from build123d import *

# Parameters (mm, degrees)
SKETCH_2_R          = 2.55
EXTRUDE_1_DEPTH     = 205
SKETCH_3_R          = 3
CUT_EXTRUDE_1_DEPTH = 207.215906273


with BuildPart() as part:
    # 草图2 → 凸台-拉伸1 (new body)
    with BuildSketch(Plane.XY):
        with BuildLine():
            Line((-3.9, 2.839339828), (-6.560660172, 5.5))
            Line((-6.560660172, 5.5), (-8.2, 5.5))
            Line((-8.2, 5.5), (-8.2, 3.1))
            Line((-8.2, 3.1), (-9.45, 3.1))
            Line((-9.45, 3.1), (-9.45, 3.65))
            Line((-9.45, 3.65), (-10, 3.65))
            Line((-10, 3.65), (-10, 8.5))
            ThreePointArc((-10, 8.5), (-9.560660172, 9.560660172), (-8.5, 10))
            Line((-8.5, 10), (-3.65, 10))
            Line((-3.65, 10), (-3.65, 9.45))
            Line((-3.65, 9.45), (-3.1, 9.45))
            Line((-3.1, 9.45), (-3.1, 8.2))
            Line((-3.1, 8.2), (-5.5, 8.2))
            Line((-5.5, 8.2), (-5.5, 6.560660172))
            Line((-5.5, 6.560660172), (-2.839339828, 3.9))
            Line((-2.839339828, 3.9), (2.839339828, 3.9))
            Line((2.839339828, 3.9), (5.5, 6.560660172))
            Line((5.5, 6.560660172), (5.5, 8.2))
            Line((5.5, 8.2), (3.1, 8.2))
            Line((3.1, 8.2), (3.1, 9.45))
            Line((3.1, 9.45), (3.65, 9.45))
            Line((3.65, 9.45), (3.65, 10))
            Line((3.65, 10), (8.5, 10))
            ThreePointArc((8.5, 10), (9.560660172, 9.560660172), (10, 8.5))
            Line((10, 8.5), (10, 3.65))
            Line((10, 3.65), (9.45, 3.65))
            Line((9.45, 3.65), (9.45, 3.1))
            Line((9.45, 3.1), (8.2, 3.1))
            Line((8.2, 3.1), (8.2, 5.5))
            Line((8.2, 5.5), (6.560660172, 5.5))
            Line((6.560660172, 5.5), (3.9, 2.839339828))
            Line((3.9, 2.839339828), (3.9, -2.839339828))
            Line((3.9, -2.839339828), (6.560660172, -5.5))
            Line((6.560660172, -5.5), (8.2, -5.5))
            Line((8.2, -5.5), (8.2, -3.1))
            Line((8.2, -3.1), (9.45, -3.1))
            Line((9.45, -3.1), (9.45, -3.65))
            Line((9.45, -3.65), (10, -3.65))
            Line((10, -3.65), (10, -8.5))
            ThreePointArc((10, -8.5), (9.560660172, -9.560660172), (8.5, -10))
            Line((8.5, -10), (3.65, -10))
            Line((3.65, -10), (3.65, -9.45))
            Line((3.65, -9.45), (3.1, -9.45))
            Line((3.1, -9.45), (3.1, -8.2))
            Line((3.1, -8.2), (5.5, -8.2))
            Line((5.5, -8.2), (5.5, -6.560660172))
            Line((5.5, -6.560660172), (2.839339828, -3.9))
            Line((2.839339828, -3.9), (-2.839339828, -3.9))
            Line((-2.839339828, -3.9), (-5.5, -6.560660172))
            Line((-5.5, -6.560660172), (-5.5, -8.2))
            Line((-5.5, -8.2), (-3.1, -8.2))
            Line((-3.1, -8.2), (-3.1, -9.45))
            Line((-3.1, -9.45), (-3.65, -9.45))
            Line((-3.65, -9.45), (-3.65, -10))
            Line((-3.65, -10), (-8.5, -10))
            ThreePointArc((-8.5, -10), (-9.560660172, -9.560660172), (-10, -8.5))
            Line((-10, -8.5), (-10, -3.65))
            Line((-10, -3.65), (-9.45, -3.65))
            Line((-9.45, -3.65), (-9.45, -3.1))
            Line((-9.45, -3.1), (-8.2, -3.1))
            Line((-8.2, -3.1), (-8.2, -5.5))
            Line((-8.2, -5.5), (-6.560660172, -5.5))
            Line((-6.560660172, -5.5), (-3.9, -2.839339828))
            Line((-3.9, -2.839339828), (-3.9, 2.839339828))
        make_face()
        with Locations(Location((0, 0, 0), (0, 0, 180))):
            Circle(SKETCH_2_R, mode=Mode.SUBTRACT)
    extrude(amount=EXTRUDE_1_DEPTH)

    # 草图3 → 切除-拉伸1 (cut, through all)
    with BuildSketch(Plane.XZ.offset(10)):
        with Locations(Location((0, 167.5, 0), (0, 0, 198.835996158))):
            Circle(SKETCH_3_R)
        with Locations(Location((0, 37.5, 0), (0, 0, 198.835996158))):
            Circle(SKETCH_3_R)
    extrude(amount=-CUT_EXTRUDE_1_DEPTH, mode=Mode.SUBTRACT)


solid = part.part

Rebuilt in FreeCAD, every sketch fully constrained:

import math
import FreeCAD as App
import Part
import Sketcher

V = App.Vector
Q = App.Units.Quantity

doc = App.newDocument("Part")
body = doc.addObject("PartDesign::Body", "Body")

sketch1 = body.newObject("Sketcher::SketchObject", "Sketch")
sketch1.AttachmentSupport = (doc.getObject("XY_Plane"), [""])
sketch1.MapMode = "FlatFace"
sketch1.addGeometry([
    Part.LineSegment(V(-6.56066, 5.5, 0), V(-3.9, 2.83934, 0)),
    Part.LineSegment(V(-3.9, 2.83934, 0), V(-3.9, -2.83934, 0)),
    Part.LineSegment(V(-3.9, -2.83934, 0), V(-6.56066, -5.5, 0)),
    Part.LineSegment(V(-6.56066, -5.5, 0), V(-8.2, -5.5, 0)),
    Part.LineSegment(V(-8.2, -5.5, 0), V(-8.2, -3.1, 0)),
    Part.LineSegment(V(-8.2, -3.1, 0), V(-9.45, -3.1, 0)),
    Part.LineSegment(V(-9.45, -3.1, 0), V(-9.45, -3.65, 0)),
    Part.LineSegment(V(-9.45, -3.65, 0), V(-10, -3.65, 0)),
    Part.LineSegment(V(-10, -3.65, 0), V(-10, -8.5, 0)),
    Part.ArcOfCircle(Part.Circle(V(-8.5, -8.5, 0), V(0, 0, 1), 1.5), math.radians(180), math.radians(270)),
    Part.LineSegment(V(-8.5, -10, 0), V(-3.65, -10, 0)),
    Part.LineSegment(V(-3.65, -10, 0), V(-3.65, -9.45, 0)),
    Part.LineSegment(V(-3.65, -9.45, 0), V(-3.1, -9.45, 0)),
    Part.LineSegment(V(-3.1, -9.45, 0), V(-3.1, -8.2, 0)),
    Part.LineSegment(V(-3.1, -8.2, 0), V(-5.5, -8.2, 0)),
    Part.LineSegment(V(-5.5, -8.2, 0), V(-5.5, -6.56066, 0)),
    Part.LineSegment(V(-5.5, -6.56066, 0), V(-2.83934, -3.9, 0)),
    Part.LineSegment(V(-2.83934, -3.9, 0), V(2.83934, -3.9, 0)),
    Part.LineSegment(V(2.83934, -3.9, 0), V(5.5, -6.56066, 0)),
    Part.LineSegment(V(5.5, -6.56066, 0), V(5.5, -8.2, 0)),
    Part.LineSegment(V(5.5, -8.2, 0), V(3.1, -8.2, 0)),
    Part.LineSegment(V(3.1, -8.2, 0), V(3.1, -9.45, 0)),
    Part.LineSegment(V(3.1, -9.45, 0), V(3.65, -9.45, 0)),
    Part.LineSegment(V(3.65, -9.45, 0), V(3.65, -10, 0)),
    Part.LineSegment(V(3.65, -10, 0), V(8.5, -10, 0)),
    Part.ArcOfCircle(Part.Circle(V(8.5, -8.5, 0), V(0, 0, 1), 1.5), math.radians(-90), math.radians(0)),
    Part.LineSegment(V(10, -8.5, 0), V(10, -3.65, 0)),
    Part.LineSegment(V(10, -3.65, 0), V(9.45, -3.65, 0)),
    Part.LineSegment(V(9.45, -3.65, 0), V(9.45, -3.1, 0)),
    Part.LineSegment(V(9.45, -3.1, 0), V(8.2, -3.1, 0)),
    Part.LineSegment(V(8.2, -3.1, 0), V(8.2, -5.5, 0)),
    Part.LineSegment(V(8.2, -5.5, 0), V(6.56066, -5.5, 0)),
    Part.LineSegment(V(6.56066, -5.5, 0), V(3.9, -2.83934, 0)),
    Part.LineSegment(V(3.9, -2.83934, 0), V(3.9, 2.83934, 0)),
    Part.LineSegment(V(3.9, 2.83934, 0), V(6.56066, 5.5, 0)),
    Part.LineSegment(V(6.56066, 5.5, 0), V(8.2, 5.5, 0)),
    Part.LineSegment(V(8.2, 5.5, 0), V(8.2, 3.1, 0)),
    Part.LineSegment(V(8.2, 3.1, 0), V(9.45, 3.1, 0)),
    Part.LineSegment(V(9.45, 3.1, 0), V(9.45, 3.65, 0)),
    Part.LineSegment(V(9.45, 3.65, 0), V(10, 3.65, 0)),
    Part.LineSegment(V(10, 3.65, 0), V(10, 8.5, 0)),
    Part.ArcOfCircle(Part.Circle(V(8.5, 8.5, 0), V(0, 0, 1), 1.5), math.radians(0), math.radians(90)),
    Part.LineSegment(V(8.5, 10, 0), V(3.65, 10, 0)),
    Part.LineSegment(V(3.65, 10, 0), V(3.65, 9.45, 0)),
    Part.LineSegment(V(3.65, 9.45, 0), V(3.1, 9.45, 0)),
    Part.LineSegment(V(3.1, 9.45, 0), V(3.1, 8.2, 0)),
    Part.LineSegment(V(3.1, 8.2, 0), V(5.5, 8.2, 0)),
    Part.LineSegment(V(5.5, 8.2, 0), V(5.5, 6.56066, 0)),
    Part.LineSegment(V(5.5, 6.56066, 0), V(2.83934, 3.9, 0)),
    Part.LineSegment(V(2.83934, 3.9, 0), V(-2.83934, 3.9, 0)),
    Part.LineSegment(V(-2.83934, 3.9, 0), V(-5.5, 6.56066, 0)),
    Part.LineSegment(V(-5.5, 6.56066, 0), V(-5.5, 8.2, 0)),
    Part.LineSegment(V(-5.5, 8.2, 0), V(-3.1, 8.2, 0)),
    Part.LineSegment(V(-3.1, 8.2, 0), V(-3.1, 9.45, 0)),
    Part.LineSegment(V(-3.1, 9.45, 0), V(-3.65, 9.45, 0)),
    Part.LineSegment(V(-3.65, 9.45, 0), V(-3.65, 10, 0)),
    Part.LineSegment(V(-3.65, 10, 0), V(-8.5, 10, 0)),
    Part.ArcOfCircle(Part.Circle(V(-8.5, 8.5, 0), V(0, 0, 1), 1.5), math.radians(90), math.radians(180)),
    Part.LineSegment(V(-10, 8.5, 0), V(-10, 3.65, 0)),
    Part.LineSegment(V(-10, 3.65, 0), V(-9.45, 3.65, 0)),
    Part.LineSegment(V(-9.45, 3.65, 0), V(-9.45, 3.1, 0)),
    Part.LineSegment(V(-9.45, 3.1, 0), V(-8.2, 3.1, 0)),
    Part.LineSegment(V(-8.2, 3.1, 0), V(-8.2, 5.5, 0)),
    Part.LineSegment(V(-8.2, 5.5, 0), V(-6.56066, 5.5, 0)),
    Part.Circle(V(0, 0, 0), V(0, 0, 1), 2.55),
], False)
sketch1.addConstraint([
    Sketcher.Constraint("Coincident", 0, 2, 1, 1),
    Sketcher.Constraint("Coincident", 1, 2, 2, 1),
    Sketcher.Constraint("Coincident", 2, 2, 3, 1),
    Sketcher.Constraint("Coincident", 3, 2, 4, 1),
    Sketcher.Constraint("Coincident", 4, 2, 5, 1),
    Sketcher.Constraint("Coincident", 5, 2, 6, 1),
    Sketcher.Constraint("Coincident", 6, 2, 7, 1),
    Sketcher.Constraint("Coincident", 7, 2, 8, 1),
    Sketcher.Constraint("Tangent", 8, 2, 9, 1),
    Sketcher.Constraint("Tangent", 9, 2, 10, 1),
    Sketcher.Constraint("Coincident", 10, 2, 11, 1),
    Sketcher.Constraint("Coincident", 11, 2, 12, 1),
    Sketcher.Constraint("Coincident", 12, 2, 13, 1),
    Sketcher.Constraint("Coincident", 13, 2, 14, 1),
    Sketcher.Constraint("Coincident", 14, 2, 15, 1),
    Sketcher.Constraint("Coincident", 15, 2, 16, 1),
    Sketcher.Constraint("Coincident", 16, 2, 17, 1),
    Sketcher.Constraint("Coincident", 17, 2, 18, 1),
    Sketcher.Constraint("Coincident", 18, 2, 19, 1),
    Sketcher.Constraint("Coincident", 19, 2, 20, 1),
    Sketcher.Constraint("Coincident", 20, 2, 21, 1),
    Sketcher.Constraint("Coincident", 21, 2, 22, 1),
    Sketcher.Constraint("Coincident", 22, 2, 23, 1),
    Sketcher.Constraint("Coincident", 23, 2, 24, 1),
    Sketcher.Constraint("Tangent", 24, 2, 25, 1),
    Sketcher.Constraint("Tangent", 25, 2, 26, 1),
    Sketcher.Constraint("Coincident", 26, 2, 27, 1),
    Sketcher.Constraint("Coincident", 27, 2, 28, 1),
    Sketcher.Constraint("Coincident", 28, 2, 29, 1),
    Sketcher.Constraint("Coincident", 29, 2, 30, 1),
    Sketcher.Constraint("Coincident", 30, 2, 31, 1),
    Sketcher.Constraint("Coincident", 31, 2, 32, 1),
    Sketcher.Constraint("Coincident", 32, 2, 33, 1),
    Sketcher.Constraint("Coincident", 33, 2, 34, 1),
    Sketcher.Constraint("Coincident", 34, 2, 35, 1),
    Sketcher.Constraint("Coincident", 35, 2, 36, 1),
    Sketcher.Constraint("Coincident", 36, 2, 37, 1),
    Sketcher.Constraint("Coincident", 37, 2, 38, 1),
    Sketcher.Constraint("Coincident", 38, 2, 39, 1),
    Sketcher.Constraint("Coincident", 39, 2, 40, 1),
    Sketcher.Constraint("Tangent", 40, 2, 41, 1),
    Sketcher.Constraint("Tangent", 41, 2, 42, 1),
    Sketcher.Constraint("Coincident", 42, 2, 43, 1),
    Sketcher.Constraint("Coincident", 43, 2, 44, 1),
    Sketcher.Constraint("Coincident", 44, 2, 45, 1),
    Sketcher.Constraint("Coincident", 45, 2, 46, 1),
    Sketcher.Constraint("Coincident", 46, 2, 47, 1),
    Sketcher.Constraint("Coincident", 47, 2, 48, 1),
    Sketcher.Constraint("Coincident", 48, 2, 49, 1),
    Sketcher.Constraint("Coincident", 49, 2, 50, 1),
    Sketcher.Constraint("Coincident", 50, 2, 51, 1),
    Sketcher.Constraint("Coincident", 51, 2, 52, 1),
    Sketcher.Constraint("Coincident", 52, 2, 53, 1),
    Sketcher.Constraint("Coincident", 53, 2, 54, 1),
    Sketcher.Constraint("Coincident", 54, 2, 55, 1),
    Sketcher.Constraint("Coincident", 55, 2, 56, 1),
    Sketcher.Constraint("Tangent", 56, 2, 57, 1),
    Sketcher.Constraint("Tangent", 57, 2, 58, 1),
    Sketcher.Constraint("Coincident", 58, 2, 59, 1),
    Sketcher.Constraint("Coincident", 59, 2, 60, 1),
    Sketcher.Constraint("Coincident", 60, 2, 61, 1),
    Sketcher.Constraint("Coincident", 61, 2, 62, 1),
    Sketcher.Constraint("Coincident", 62, 2, 63, 1),
    Sketcher.Constraint("Coincident", 63, 2, 0, 1),
    Sketcher.Constraint("Vertical", 1),
    Sketcher.Constraint("Horizontal", 3),
    Sketcher.Constraint("Vertical", 4),
    Sketcher.Constraint("Horizontal", 5),
    Sketcher.Constraint("Vertical", 6),
    Sketcher.Constraint("Horizontal", 7),
    Sketcher.Constraint("Vertical", 8),
    Sketcher.Constraint("Horizontal", 10),
    Sketcher.Constraint("Vertical", 11),
    Sketcher.Constraint("Horizontal", 12),
    Sketcher.Constraint("Vertical", 13),
    Sketcher.Constraint("Horizontal", 14),
    Sketcher.Constraint("Vertical", 15),
    Sketcher.Constraint("Horizontal", 17),
    Sketcher.Constraint("Vertical", 19),
    Sketcher.Constraint("Horizontal", 20),
    Sketcher.Constraint("Vertical", 21),
    Sketcher.Constraint("Horizontal", 22),
    Sketcher.Constraint("Vertical", 23),
    Sketcher.Constraint("Horizontal", 24),
    Sketcher.Constraint("Vertical", 26),
    Sketcher.Constraint("Horizontal", 27),
    Sketcher.Constraint("Vertical", 28),
    Sketcher.Constraint("Horizontal", 29),
    Sketcher.Constraint("Vertical", 30),
    Sketcher.Constraint("Horizontal", 31),
    Sketcher.Constraint("Vertical", 33),
    Sketcher.Constraint("Horizontal", 35),
    Sketcher.Constraint("Vertical", 36),
    Sketcher.Constraint("Horizontal", 37),
    Sketcher.Constraint("Vertical", 38),
    Sketcher.Constraint("Horizontal", 39),
    Sketcher.Constraint("Vertical", 40),
    Sketcher.Constraint("Horizontal", 42),
    Sketcher.Constraint("Vertical", 43),
    Sketcher.Constraint("Horizontal", 44),
    Sketcher.Constraint("Vertical", 45),
    Sketcher.Constraint("Horizontal", 46),
    Sketcher.Constraint("Vertical", 47),
    Sketcher.Constraint("Horizontal", 49),
    Sketcher.Constraint("Vertical", 51),
    Sketcher.Constraint("Horizontal", 52),
    Sketcher.Constraint("Vertical", 53),
    Sketcher.Constraint("Horizontal", 54),
    Sketcher.Constraint("Vertical", 55),
    Sketcher.Constraint("Horizontal", 56),
    Sketcher.Constraint("Vertical", 58),
    Sketcher.Constraint("Horizontal", 59),
    Sketcher.Constraint("Vertical", 60),
    Sketcher.Constraint("Horizontal", 61),
    Sketcher.Constraint("Vertical", 62),
    Sketcher.Constraint("Horizontal", 63),
    Sketcher.Constraint("Coincident", 64, 3, -1, 1),
    Sketcher.Constraint("Equal", 9, 25),
    Sketcher.Constraint("Equal", 25, 41),
    Sketcher.Constraint("Equal", 41, 57),
    Sketcher.Constraint("Symmetric", 9, 3, 41, 3, -1, 1),
    Sketcher.Constraint("Symmetric", 25, 3, 57, 3, -1, 1),
    Sketcher.Constraint("Symmetric", 0, 2, 32, 2, -1, 1),
    Sketcher.Constraint("Symmetric", 2, 2, 34, 2, -1, 1),
    Sketcher.Constraint("Symmetric", 4, 2, 36, 2, -1, 1),
    Sketcher.Constraint("Symmetric", 6, 2, 38, 2, -1, 1),
    Sketcher.Constraint("Symmetric", 11, 2, 43, 2, -1, 1),
    Sketcher.Constraint("Symmetric", 13, 2, 45, 2, -1, 1),
    Sketcher.Constraint("Symmetric", 15, 2, 47, 2, -1, 1),
    Sketcher.Constraint("Symmetric", 16, 2, 48, 2, -1, 1),
    Sketcher.Constraint("Symmetric", 18, 2, 50, 2, -1, 1),
    Sketcher.Constraint("Symmetric", 20, 2, 52, 2, -1, 1),
    Sketcher.Constraint("Symmetric", 22, 2, 54, 2, -1, 1),
    Sketcher.Constraint("Symmetric", 27, 2, 59, 2, -1, 1),
    Sketcher.Constraint("Symmetric", 29, 2, 61, 2, -1, 1),
    Sketcher.Constraint("Symmetric", 31, 2, 63, 2, -1, 1),
    Sketcher.Constraint("Symmetric", 9, 3, 25, 3, -2),
    Sketcher.Constraint("Symmetric", 15, 2, 18, 2, -2),
    Sketcher.Constraint("Symmetric", 13, 2, 20, 2, -2),
    Sketcher.Constraint("Symmetric", 11, 2, 22, 2, -2),
    Sketcher.Constraint("Symmetric", 6, 2, 27, 2, -2),
    Sketcher.Constraint("Symmetric", 4, 2, 29, 2, -2),
    Sketcher.Constraint("Symmetric", 2, 2, 31, 2, -2),
    Sketcher.Constraint("Perpendicular", 0, 2),
    Sketcher.Constraint("Parallel", 2, 16),
    Sketcher.Constraint("Perpendicular", 16, 18),
    Sketcher.Constraint("Perpendicular", 32, 34),
    Sketcher.Constraint("Perpendicular", 48, 50),
    Sketcher.Constraint("Horizontal", 1, 2, 32, 2),
    Sketcher.Constraint("Equal", 7, 12),
    Sketcher.Constraint("Equal", 49, 1),
    Sketcher.Constraint("Equal", 52, 4),
    Sketcher.Constraint("Equal", 59, 6),
    Sketcher.Constraint("Equal", 56, 8),
    Sketcher.Constraint("Equal", 6, 11),
    Sketcher.Constraint("Equal", 61, 13),
    Sketcher.Constraint("Equal", 63, 15),
    Sketcher.Constraint("Equal", 2, 16),
    Sketcher.Constraint("Diameter", 64, Q("5.1 mm")),
    Sketcher.Constraint("Radius", 9, Q("1.5 mm")),
    Sketcher.Constraint("DistanceX", 14, 2, 14, 1, Q("2.4 mm")),
    Sketcher.Constraint("DistanceX", 7, 2, -1, 1, Q("10 mm")),
    Sketcher.Constraint("DistanceX", 5, 2, 5, 1, Q("1.25 mm")),
    Sketcher.Constraint("DistanceX", 7, 2, 7, 1, Q("0.55 mm")),
    Sketcher.Constraint("DistanceX", 10, 1, 10, 2, Q("4.85 mm")),
    Sketcher.Constraint("DistanceX", 0, 2, -1, 1, Q("3.9 mm")),
    Sketcher.Constraint("DistanceX", 3, 2, 3, 1, Q("1.63934 mm")),
])
pad1 = body.newObject("PartDesign::Pad", "Pad")
pad1.Profile = sketch1
pad1.Length = 205

sketch2 = body.newObject("Sketcher::SketchObject", "Sketch001")
sketch2.AttachmentSupport = (doc.getObject("XZ_Plane"), [""])
sketch2.MapMode = "FlatFace"
sketch2.AttachmentOffset = App.Placement(V(0, 0, 10), App.Rotation())
sketch2.addGeometry([
    Part.Circle(V(0, 167.5, 0), V(0, 0, 1), 3),
    Part.Circle(V(0, 37.5, 0), V(0, 0, 1), 3),
], False)
sketch2.addConstraint([
    Sketcher.Constraint("Equal", 0, 1),
    Sketcher.Constraint("PointOnObject", 0, 3, -2),
    Sketcher.Constraint("PointOnObject", 1, 3, -2),
    Sketcher.Constraint("Diameter", 0, Q("6 mm")),
    Sketcher.Constraint("DistanceY", 1, 3, 0, 3, Q("130 mm")),
    Sketcher.Constraint("DistanceY", -1, 1, 0, 3, Q("167.5 mm")),
])
pocket1 = body.newObject("PartDesign::Pocket", "Pocket")
pocket1.Profile = sketch2
pocket1.Type = "ThroughAll"

doc.recompute()
